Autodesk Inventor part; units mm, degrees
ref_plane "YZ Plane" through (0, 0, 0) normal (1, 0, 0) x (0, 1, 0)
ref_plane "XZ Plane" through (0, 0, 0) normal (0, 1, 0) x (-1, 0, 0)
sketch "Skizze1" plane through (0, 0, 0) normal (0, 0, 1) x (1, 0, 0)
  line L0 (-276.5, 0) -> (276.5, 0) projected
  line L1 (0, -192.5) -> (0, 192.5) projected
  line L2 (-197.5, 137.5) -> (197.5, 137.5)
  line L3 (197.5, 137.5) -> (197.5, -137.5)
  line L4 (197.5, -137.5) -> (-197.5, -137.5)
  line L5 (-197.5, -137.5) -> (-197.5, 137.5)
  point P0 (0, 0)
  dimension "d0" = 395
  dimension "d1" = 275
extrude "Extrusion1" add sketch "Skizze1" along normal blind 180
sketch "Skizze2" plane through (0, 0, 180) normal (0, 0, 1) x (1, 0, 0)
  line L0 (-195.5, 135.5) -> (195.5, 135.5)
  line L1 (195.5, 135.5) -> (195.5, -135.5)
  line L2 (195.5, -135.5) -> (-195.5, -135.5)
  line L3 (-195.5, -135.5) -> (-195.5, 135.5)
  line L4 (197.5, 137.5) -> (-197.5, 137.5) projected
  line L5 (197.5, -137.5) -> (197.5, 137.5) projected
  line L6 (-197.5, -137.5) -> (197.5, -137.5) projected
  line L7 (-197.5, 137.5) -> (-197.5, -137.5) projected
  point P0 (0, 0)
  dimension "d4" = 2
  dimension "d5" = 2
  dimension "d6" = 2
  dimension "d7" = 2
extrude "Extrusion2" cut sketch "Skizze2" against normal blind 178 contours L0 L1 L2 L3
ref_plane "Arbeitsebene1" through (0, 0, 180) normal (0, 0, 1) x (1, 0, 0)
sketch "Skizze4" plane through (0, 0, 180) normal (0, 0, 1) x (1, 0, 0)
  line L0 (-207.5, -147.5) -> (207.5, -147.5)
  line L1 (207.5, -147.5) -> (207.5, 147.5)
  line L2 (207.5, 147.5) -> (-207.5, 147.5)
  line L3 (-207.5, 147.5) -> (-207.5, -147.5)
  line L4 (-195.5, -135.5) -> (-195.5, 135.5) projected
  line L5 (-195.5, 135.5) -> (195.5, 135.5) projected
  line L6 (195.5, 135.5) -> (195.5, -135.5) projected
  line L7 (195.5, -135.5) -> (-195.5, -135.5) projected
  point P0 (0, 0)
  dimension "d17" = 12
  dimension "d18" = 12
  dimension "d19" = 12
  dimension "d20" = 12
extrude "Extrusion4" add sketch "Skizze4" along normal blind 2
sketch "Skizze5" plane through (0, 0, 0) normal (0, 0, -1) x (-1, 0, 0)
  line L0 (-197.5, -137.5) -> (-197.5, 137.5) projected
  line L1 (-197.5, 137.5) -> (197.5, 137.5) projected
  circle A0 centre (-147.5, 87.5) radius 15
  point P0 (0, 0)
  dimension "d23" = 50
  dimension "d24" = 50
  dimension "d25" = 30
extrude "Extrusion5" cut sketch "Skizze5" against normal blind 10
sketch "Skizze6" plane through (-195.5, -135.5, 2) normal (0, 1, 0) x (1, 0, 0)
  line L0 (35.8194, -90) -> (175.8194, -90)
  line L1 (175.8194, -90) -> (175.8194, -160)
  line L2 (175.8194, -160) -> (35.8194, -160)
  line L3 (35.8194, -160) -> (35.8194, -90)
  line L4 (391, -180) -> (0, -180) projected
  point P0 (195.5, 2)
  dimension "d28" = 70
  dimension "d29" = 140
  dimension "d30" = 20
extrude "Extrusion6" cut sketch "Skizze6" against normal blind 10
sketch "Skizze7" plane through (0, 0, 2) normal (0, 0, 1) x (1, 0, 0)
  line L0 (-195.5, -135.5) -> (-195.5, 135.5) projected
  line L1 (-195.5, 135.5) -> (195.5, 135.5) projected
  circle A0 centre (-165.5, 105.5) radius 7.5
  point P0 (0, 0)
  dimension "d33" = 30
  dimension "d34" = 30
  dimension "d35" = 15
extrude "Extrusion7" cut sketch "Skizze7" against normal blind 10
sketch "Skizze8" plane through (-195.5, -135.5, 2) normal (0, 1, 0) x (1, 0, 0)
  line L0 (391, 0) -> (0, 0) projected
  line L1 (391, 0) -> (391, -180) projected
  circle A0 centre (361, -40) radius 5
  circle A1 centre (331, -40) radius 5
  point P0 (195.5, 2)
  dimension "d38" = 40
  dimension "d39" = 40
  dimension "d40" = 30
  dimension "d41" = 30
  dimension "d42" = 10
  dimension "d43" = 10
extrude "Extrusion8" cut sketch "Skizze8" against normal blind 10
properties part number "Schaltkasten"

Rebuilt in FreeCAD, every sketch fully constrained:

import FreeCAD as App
import Part
import Sketcher

V = App.Vector


def add_polygon(sketch, points):
    """Adds a closed chain of lines whose ends are joined by coincident constraints."""
    first, n = sketch.GeometryCount, len(points)
    for a, b in zip(points, points[1:] + points[:1]):
        sketch.addGeometry(Part.LineSegment(App.Vector(*a, 0), App.Vector(*b, 0)), False)
    for i in range(n):
        sketch.addConstraint(Sketcher.Constraint("Coincident", first + i, 2, first + (i + 1) % n, 1))

doc = App.newDocument("Part")
params = doc.addObject("Spreadsheet::Sheet", "Params")
for row, (alias, value) in enumerate([
    ("sketch1_width", "395 mm"),
    ("sketch1_height", "275 mm"),
    ("pad1_length", "180 mm"),
    ("sketch2_width", "391 mm"),
    ("sketch2_height", "271 mm"),
    ("pocket1_length", "178 mm"),
    ("sketch3_width", "415 mm"),
    ("sketch3_height", "295 mm"),
    ("pad2_length", "2 mm"),
    ("sketch4_diameter", "30 mm"),
    ("pocket2_length", "10 mm"),
    ("sketch5_width", "140 mm"),
    ("sketch5_height", "70 mm"),
    ("pocket3_length", "10 mm"),
    ("sketch6_diameter", "15 mm"),
    ("pocket4_length", "10 mm"),
    ("sketch7_diameter", "10 mm"),
    ("pocket5_length", "10 mm"),
], start=1):
    params.set(f"A{row}", alias)
    params.set(f"B{row}", "=" + value)
    params.setAlias(f"B{row}", alias)

body = doc.addObject("PartDesign::Body", "Body")

# Sketch on XY plane
sketch1 = body.newObject("Sketcher::SketchObject", "Sketch")
sketch1.AttachmentSupport = (doc.getObject("XY_Plane"), [""])
sketch1.MapMode = "FlatFace"
add_polygon(sketch1, [(-198, 138), (-198, -138), (198, -138), (198, 138)])  # lines 0-3
sketch1.addConstraint(Sketcher.Constraint("Vertical", 0))
sketch1.addConstraint(Sketcher.Constraint("Horizontal", 1))
sketch1.addConstraint(Sketcher.Constraint("Vertical", 2))
sketch1.addConstraint(Sketcher.Constraint("Horizontal", 3))
sketch1.addConstraint(Sketcher.Constraint("Symmetric", 0, 2, 2, 2, -1, 1))
sketch1.addConstraint(Sketcher.Constraint("DistanceX", 1, 1, 1, 2, 395.0))
sketch1.addConstraint(Sketcher.Constraint("DistanceY", 0, 2, 0, 1, 275.0))
sketch1.setExpression("Constraints[9]", "Params.sketch1_width")
sketch1.setExpression("Constraints[10]", "Params.sketch1_height")
pad1 = body.newObject("PartDesign::Pad", "Pad")
pad1.Profile = sketch1
pad1.setExpression("Length", "Params.pad1_length")

# Sketch on XY plane
sketch2 = body.newObject("Sketcher::SketchObject", "Sketch001")
sketch2.AttachmentSupport = (doc.getObject("XY_Plane"), [""])
sketch2.MapMode = "FlatFace"
sketch2.AttachmentOffset = App.Placement(V(0, 0, 180), App.Rotation())
add_polygon(sketch2, [(196, 136), (-196, 136), (-196, -136), (196, -136)])  # lines 0-3
sketch2.addConstraint(Sketcher.Constraint("Horizontal", 0))
sketch2.addConstraint(Sketcher.Constraint("Vertical", 1))
sketch2.addConstraint(Sketcher.Constraint("Horizontal", 2))
sketch2.addConstraint(Sketcher.Constraint("Vertical", 3))
sketch2.addConstraint(Sketcher.Constraint("Symmetric", 0, 2, 2, 2, -1, 1))
sketch2.addConstraint(Sketcher.Constraint("DistanceX", 0, 2, 0, 1, 391.0))
sketch2.addConstraint(Sketcher.Constraint("DistanceY", 1, 2, 1, 1, 271.0))
sketch2.setExpression("Constraints[9]", "Params.sketch2_width")
sketch2.setExpression("Constraints[10]", "Params.sketch2_height")
pocket1 = body.newObject("PartDesign::Pocket", "Pocket")
pocket1.Profile = sketch2
pocket1.setExpression("Length", "Params.pocket1_length")

# Sketch on XY plane
sketch3 = body.newObject("Sketcher::SketchObject", "Sketch002")
sketch3.AttachmentSupport = (doc.getObject("XY_Plane"), [""])
sketch3.MapMode = "FlatFace"
sketch3.AttachmentOffset = App.Placement(V(0, 0, 180), App.Rotation())
add_polygon(sketch3, [(-208, 148), (-208, -148), (208, -148), (208, 148)])  # lines 0-3
add_polygon(sketch3, [(196, -136), (-196, -136), (-196, 136), (196, 136)])  # lines 4-7
sketch3.addConstraint(Sketcher.Constraint("Vertical", 0))
sketch3.addConstraint(Sketcher.Constraint("Horizontal", 1))
sketch3.addConstraint(Sketcher.Constraint("Vertical", 2))
sketch3.addConstraint(Sketcher.Constraint("Horizontal", 3))
sketch3.addConstraint(Sketcher.Constraint("Horizontal", 4))
sketch3.addConstraint(Sketcher.Constraint("Vertical", 5))
sketch3.addConstraint(Sketcher.Constraint("Horizontal", 6))
sketch3.addConstraint(Sketcher.Constraint("Vertical", 7))
sketch3.addConstraint(Sketcher.Constraint("Symmetric", 0, 2, 2, 2, -1, 1))
sketch3.addConstraint(Sketcher.Constraint("Symmetric", 4, 2, 6, 2, -1, 1))
sketch3.addConstraint(Sketcher.Constraint("DistanceX", 0, 2, 4, 2, 12.0))
sketch3.addConstraint(Sketcher.Constraint("DistanceY", 0, 2, 4, 2, 12.0))
sketch3.addConstraint(Sketcher.Constraint("DistanceX", 1, 1, 1, 2, 415.0))
sketch3.addConstraint(Sketcher.Constraint("DistanceY", 0, 2, 0, 1, 295.0))
sketch3.setExpression("Constraints[20]", "Params.sketch3_width")
sketch3.setExpression("Constraints[21]", "Params.sketch3_height")
pad2 = body.newObject("PartDesign::Pad", "Pad001")
pad2.Profile = sketch3
pad2.setExpression("Length", "Params.pad2_length")

# Sketch on XY plane
sketch4 = body.newObject("Sketcher::SketchObject", "Sketch003")
sketch4.AttachmentSupport = (doc.getObject("XY_Plane"), [""])
sketch4.MapMode = "FlatFace"
sketch4.addGeometry(Part.Circle(V(148, 88, 0), V(0, 0, 1), 15), False)
sketch4.addConstraint(Sketcher.Constraint("Diameter", 0, 30.0))
sketch4.addConstraint(Sketcher.Constraint("DistanceX", -1, 1, 0, 3, 147.5))
sketch4.addConstraint(Sketcher.Constraint("DistanceY", -1, 1, 0, 3, 87.5))
sketch4.setExpression("Constraints[0]", "Params.sketch4_diameter")
pocket2 = body.newObject("PartDesign::Pocket", "Pocket001")
pocket2.Profile = sketch4
pocket2.setExpression("Length", "Params.pocket2_length")
pocket2.Reversed = True

# Sketch on XZ plane
sketch5 = body.newObject("Sketcher::SketchObject", "Sketch004")
sketch5.AttachmentSupport = (doc.getObject("XZ_Plane"), [""])
sketch5.MapMode = "FlatFace"
sketch5.AttachmentOffset = App.Placement(V(0, 0, 135.5), App.Rotation())
add_polygon(sketch5, [(-20, 92), (-160, 92), (-160, 162), (-20, 162)])  # lines 0-3
sketch5.addConstraint(Sketcher.Constraint("Horizontal", 0))
sketch5.addConstraint(Sketcher.Constraint("Vertical", 1))
sketch5.addConstraint(Sketcher.Constraint("Horizontal", 2))
sketch5.addConstraint(Sketcher.Constraint("Vertical", 3))
sketch5.addConstraint(Sketcher.Constraint("DistanceX", 0, 2, 0, 1, 140.0))
sketch5.addConstraint(Sketcher.Constraint("DistanceY", 1, 1, 1, 2, 70.0))
sketch5.addConstraint(Sketcher.Constraint("DistanceY", -1, 1, 0, 2, 92.0))
sketch5.addConstraint(Sketcher.Constraint("DistanceX", 0, 2, -1, 1, 159.6806))
sketch5.setExpression("Constraints[8]", "Params.sketch5_width")
sketch5.setExpression("Constraints[9]", "Params.sketch5_height")
pocket3 = body.newObject("PartDesign::Pocket", "Pocket002")
pocket3.Profile = sketch5
pocket3.setExpression("Length", "Params.pocket3_length")
pocket3.Reversed = True

# Sketch on XY plane
sketch6 = body.newObject("Sketcher::SketchObject", "Sketch005")
sketch6.AttachmentSupport = (doc.getObject("XY_Plane"), [""])
sketch6.MapMode = "FlatFace"
sketch6.AttachmentOffset = App.Placement(V(0, 0, 2), App.Rotation())
sketch6.addGeometry(Part.Circle(V(-166, 106, 0), V(0, 0, 1), 8), False)
sketch6.addConstraint(Sketcher.Constraint("Diameter", 0, 15.0))
sketch6.addConstraint(Sketcher.Constraint("DistanceX", 0, 3, -1, 1, 165.5))
sketch6.addConstraint(Sketcher.Constraint("DistanceY", -1, 1, 0, 3, 105.5))
sketch6.setExpression("Constraints[0]", "Params.sketch6_diameter")
pocket4 = body.newObject("PartDesign::Pocket", "Pocket003")
pocket4.Profile = sketch6
pocket4.setExpression("Length", "Params.pocket4_length")

# Sketch on XZ plane
sketch7 = body.newObject("Sketcher::SketchObject", "Sketch006")
sketch7.AttachmentSupport = (doc.getObject("XZ_Plane"), [""])
sketch7.MapMode = "FlatFace"
sketch7.AttachmentOffset = App.Placement(V(0, 0, 135.5), App.Rotation())
sketch7.addGeometry(Part.Circle(V(166, 42, 0), V(0, 0, 1), 5), False)
sketch7.addGeometry(Part.Circle(V(136, 42, 0), V(0, 0, 1), 5), False)
sketch7.addConstraint(Sketcher.Constraint("Equal", 0, 1))
sketch7.addConstraint(Sketcher.Constraint("Horizontal", 0, 3, 1, 3))
sketch7.addConstraint(Sketcher.Constraint("Diameter", 0, 10.0))
sketch7.addConstraint(Sketcher.Constraint("DistanceX", 1, 3, 0, 3, 30.0))
sketch7.addConstraint(Sketcher.Constraint("DistanceY", -1, 1, 0, 3, 42.0))
sketch7.addConstraint(Sketcher.Constraint("DistanceX", -1, 1, 0, 3, 165.5))
sketch7.setExpression("Constraints[2]", "Params.sketch7_diameter")
pocket5 = body.newObject("PartDesign::Pocket", "Pocket004")
pocket5.Profile = sketch7
pocket5.setExpression("Length", "Params.pocket5_length")
pocket5.Reversed = True

doc.recompute()
